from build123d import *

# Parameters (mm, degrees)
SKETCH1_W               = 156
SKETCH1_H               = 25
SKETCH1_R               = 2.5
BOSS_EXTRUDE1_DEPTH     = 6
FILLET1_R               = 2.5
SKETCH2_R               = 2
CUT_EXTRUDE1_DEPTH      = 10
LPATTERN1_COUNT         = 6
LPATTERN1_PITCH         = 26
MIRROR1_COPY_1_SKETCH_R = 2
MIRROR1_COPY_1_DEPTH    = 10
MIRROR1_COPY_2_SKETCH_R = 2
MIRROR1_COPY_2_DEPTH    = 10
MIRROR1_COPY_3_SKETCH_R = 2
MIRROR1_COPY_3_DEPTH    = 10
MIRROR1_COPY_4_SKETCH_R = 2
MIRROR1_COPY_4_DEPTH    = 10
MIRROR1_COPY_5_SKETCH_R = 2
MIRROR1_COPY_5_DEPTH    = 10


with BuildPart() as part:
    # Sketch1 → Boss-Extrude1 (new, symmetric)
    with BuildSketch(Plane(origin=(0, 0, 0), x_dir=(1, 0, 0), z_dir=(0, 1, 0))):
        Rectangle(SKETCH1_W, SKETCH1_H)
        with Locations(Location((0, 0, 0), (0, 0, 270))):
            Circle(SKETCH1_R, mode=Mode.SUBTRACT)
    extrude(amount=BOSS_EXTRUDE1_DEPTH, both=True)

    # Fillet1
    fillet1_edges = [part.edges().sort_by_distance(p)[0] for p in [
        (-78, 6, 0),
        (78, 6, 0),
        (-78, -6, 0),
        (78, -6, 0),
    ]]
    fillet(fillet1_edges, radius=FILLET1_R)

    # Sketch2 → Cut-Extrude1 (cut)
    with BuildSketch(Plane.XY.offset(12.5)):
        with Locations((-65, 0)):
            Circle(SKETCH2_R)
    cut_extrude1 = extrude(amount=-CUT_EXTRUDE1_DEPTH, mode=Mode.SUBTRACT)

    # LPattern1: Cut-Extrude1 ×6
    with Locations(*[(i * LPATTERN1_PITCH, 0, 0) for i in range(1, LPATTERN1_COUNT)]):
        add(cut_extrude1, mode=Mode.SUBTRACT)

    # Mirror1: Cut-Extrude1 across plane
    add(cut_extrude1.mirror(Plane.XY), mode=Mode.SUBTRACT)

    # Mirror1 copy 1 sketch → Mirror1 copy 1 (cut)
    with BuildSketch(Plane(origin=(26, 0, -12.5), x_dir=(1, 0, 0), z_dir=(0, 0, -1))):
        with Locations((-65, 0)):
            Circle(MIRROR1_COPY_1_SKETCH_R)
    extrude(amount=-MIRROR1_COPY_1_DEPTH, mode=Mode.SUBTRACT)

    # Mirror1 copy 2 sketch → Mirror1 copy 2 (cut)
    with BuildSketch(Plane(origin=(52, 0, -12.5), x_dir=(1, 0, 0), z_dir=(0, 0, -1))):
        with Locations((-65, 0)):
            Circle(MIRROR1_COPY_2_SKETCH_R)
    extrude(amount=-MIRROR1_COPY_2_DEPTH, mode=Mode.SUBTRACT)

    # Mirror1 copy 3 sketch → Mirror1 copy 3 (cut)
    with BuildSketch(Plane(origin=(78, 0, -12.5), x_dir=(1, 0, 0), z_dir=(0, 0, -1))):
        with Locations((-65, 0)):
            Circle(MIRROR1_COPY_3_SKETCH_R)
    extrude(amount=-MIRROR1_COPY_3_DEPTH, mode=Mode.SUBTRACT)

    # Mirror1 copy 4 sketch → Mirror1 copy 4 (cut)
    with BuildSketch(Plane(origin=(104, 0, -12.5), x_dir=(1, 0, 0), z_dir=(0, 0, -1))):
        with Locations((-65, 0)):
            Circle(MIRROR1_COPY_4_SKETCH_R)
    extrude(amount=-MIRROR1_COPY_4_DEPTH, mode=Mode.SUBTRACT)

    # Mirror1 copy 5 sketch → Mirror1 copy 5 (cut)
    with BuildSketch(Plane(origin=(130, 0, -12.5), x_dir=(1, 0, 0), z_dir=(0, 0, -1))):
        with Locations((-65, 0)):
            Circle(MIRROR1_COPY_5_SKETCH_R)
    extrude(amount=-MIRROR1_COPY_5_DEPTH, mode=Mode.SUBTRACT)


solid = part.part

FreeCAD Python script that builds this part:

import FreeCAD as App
import Part
import Sketcher

V = App.Vector


def edges_at(feature, points):
    """Names of the edges that pass closest to the given points."""
    edges = feature.Shape.Edges
    near = lambda p: min(range(len(edges)), key=lambda i: edges[i].distToShape(Part.Vertex(*p))[0])
    return sorted({f"Edge{near(p) + 1}" for p in points})

doc = App.newDocument("Part")
params = doc.addObject("Spreadsheet::Sheet", "Params")
for row, (alias, value) in enumerate([
    ("sketch1_diameter", "5 mm"),
    ("sketch1_width", "156 mm"),
    ("sketch1_height", "25 mm"),
    ("pad1_length", "12 mm"),
    ("fillet_radius", "2.5 mm"),
    ("sketch2_diameter", "4 mm"),
    ("pocket1_length", "10 mm"),
    ("linearpattern_pitch", "26 mm"),
    ("sketch3_diameter", "4 mm"),
    ("pocket2_length", "10 mm"),
    ("sketch4_diameter", "4 mm"),
    ("pocket3_length", "10 mm"),
    ("sketch5_diameter", "4 mm"),
    ("pocket4_length", "10 mm"),
    ("sketch6_diameter", "4 mm"),
    ("pocket5_length", "10 mm"),
    ("sketch7_diameter", "4 mm"),
    ("pocket6_length", "10 mm"),
], start=1):
    params.set(f"A{row}", alias)
    params.set(f"B{row}", "=" + value)
    params.setAlias(f"B{row}", alias)

body = doc.addObject("PartDesign::Body", "Body")

sketch1 = body.newObject("Sketcher::SketchObject", "Sketch")
sketch1.AttachmentSupport = (doc.getObject("XZ_Plane"), [""])
sketch1.MapMode = "FlatFace"
sketch1.addGeometry(Part.LineSegment(V(-78, -12.5, 0), V(-78, 12.5, 0)), False)
sketch1.addGeometry(Part.LineSegment(V(-78, 12.5, 0), V(78, 12.5, 0)), False)
sketch1.addGeometry(Part.LineSegment(V(78, 12.5, 0), V(78, -12.5, 0)), False)
sketch1.addGeometry(Part.LineSegment(V(78, -12.5, 0), V(-78, -12.5, 0)), False)
sketch1.addGeometry(Part.Circle(V(0, 0, 0), V(0, 0, 1), 2.5), False)
sketch1.addConstraint(Sketcher.Constraint("Coincident", 0, 2, 1, 1))
sketch1.addConstraint(Sketcher.Constraint("Coincident", 1, 2, 2, 1))
sketch1.addConstraint(Sketcher.Constraint("Coincident", 2, 2, 3, 1))
sketch1.addConstraint(Sketcher.Constraint("Coincident", 3, 2, 0, 1))
sketch1.addConstraint(Sketcher.Constraint("Vertical", 0))
sketch1.addConstraint(Sketcher.Constraint("Horizontal", 1))
sketch1.addConstraint(Sketcher.Constraint("Vertical", 2))
sketch1.addConstraint(Sketcher.Constraint("Horizontal", 3))
sketch1.addConstraint(Sketcher.Constraint("Coincident", 4, 3, -1, 1))
sketch1.addConstraint(Sketcher.Constraint("Symmetric", 0, 2, 2, 2, -1, 1))
sketch1.addConstraint(Sketcher.Constraint("Diameter", 4, 5.0))
sketch1.addConstraint(Sketcher.Constraint("DistanceX", 1, 1, 1, 2, 156.0))
sketch1.addConstraint(Sketcher.Constraint("DistanceY", 0, 1, 0, 2, 25.0))
sketch1.setExpression("Constraints[10]", "Params.sketch1_diameter")
sketch1.setExpression("Constraints[11]", "Params.sketch1_width")
sketch1.setExpression("Constraints[12]", "Params.sketch1_height")
pad1 = body.newObject("PartDesign::Pad", "Pad")
pad1.Profile = sketch1
pad1.setExpression("Length", "Params.pad1_length")
pad1.Midplane = True
doc.recompute()

fillet = body.newObject("PartDesign::Fillet", "Fillet")
fillet.Base = (pad1, edges_at(pad1, [
    (-78, 6, 0),
    (78, 6, 0),
    (-78, -6, 0),
    (78, -6, 0),
]))
fillet.setExpression("Radius", "Params.fillet_radius")

sketch2 = body.newObject("Sketcher::SketchObject", "Sketch001")
sketch2.AttachmentSupport = (doc.getObject("XY_Plane"), [""])
sketch2.MapMode = "FlatFace"
sketch2.AttachmentOffset = App.Placement(V(0, 0, 12.5), App.Rotation())
sketch2.addGeometry(Part.Circle(V(-65, 0, 0), V(0, 0, 1), 2), False)
sketch2.addConstraint(Sketcher.Constraint("PointOnObject", 0, 3, -1))
sketch2.addConstraint(Sketcher.Constraint("Diameter", 0, 4.0))
sketch2.addConstraint(Sketcher.Constraint("DistanceX", 0, 3, -1, 1, 65.0))
sketch2.setExpression("Constraints[1]", "Params.sketch2_diameter")
pocket1 = body.newObject("PartDesign::Pocket", "Pocket")
pocket1.Profile = sketch2
pocket1.setExpression("Length", "Params.pocket1_length")
doc.recompute()

linearpattern = body.newObject("PartDesign::LinearPattern", "LinearPattern")
linearpattern.Originals = [pocket1]
linearpattern.Direction = (doc.getObject("X_Axis"), [""])
linearpattern.Mode = "offset"
linearpattern.setExpression("Offset", "Params.linearpattern_pitch")
linearpattern.Occurrences = 6
body.Tip = linearpattern
doc.recompute()

mirrored = body.newObject("PartDesign::Mirrored", "Mirrored")
mirrored.Originals = [pocket1]
mirrored.MirrorPlane = (doc.getObject("XY_Plane"), [""])
body.Tip = mirrored

sketch3 = body.newObject("Sketcher::SketchObject", "Sketch002")
sketch3.AttachmentSupport = (doc.getObject("XY_Plane"), [""])
sketch3.MapMode = "FlatFace"
sketch3.AttachmentOffset = App.Placement(V(0, 0, -12.5), App.Rotation())
sketch3.addGeometry(Part.Circle(V(-39, 0, 0), V(0, 0, 1), 2), False)
sketch3.addConstraint(Sketcher.Constraint("PointOnObject", 0, 3, -1))
sketch3.addConstraint(Sketcher.Constraint("Diameter", 0, 4.0))
sketch3.addConstraint(Sketcher.Constraint("DistanceX", 0, 3, -1, 1, 39.0))
sketch3.setExpression("Constraints[1]", "Params.sketch3_diameter")
pocket2 = body.newObject("PartDesign::Pocket", "Pocket001")
pocket2.Profile = sketch3
pocket2.setExpression("Length", "Params.pocket2_length")
pocket2.Reversed = True

sketch4 = body.newObject("Sketcher::SketchObject", "Sketch003")
sketch4.AttachmentSupport = (doc.getObject("XY_Plane"), [""])
sketch4.MapMode = "FlatFace"
sketch4.AttachmentOffset = App.Placement(V(0, 0, -12.5), App.Rotation())
sketch4.addGeometry(Part.Circle(V(-13, 0, 0), V(0, 0, 1), 2), False)
sketch4.addConstraint(Sketcher.Constraint("PointOnObject", 0, 3, -1))
sketch4.addConstraint(Sketcher.Constraint("Diameter", 0, 4.0))
sketch4.addConstraint(Sketcher.Constraint("DistanceX", 0, 3, -1, 1, 13.0))
sketch4.setExpression("Constraints[1]", "Params.sketch4_diameter")
pocket3 = body.newObject("PartDesign::Pocket", "Pocket002")
pocket3.Profile = sketch4
pocket3.setExpression("Length", "Params.pocket3_length")
pocket3.Reversed = True

sketch5 = body.newObject("Sketcher::SketchObject", "Sketch004")
sketch5.AttachmentSupport = (doc.getObject("XY_Plane"), [""])
sketch5.MapMode = "FlatFace"
sketch5.AttachmentOffset = App.Placement(V(0, 0, -12.5), App.Rotation())
sketch5.addGeometry(Part.Circle(V(13, 0, 0), V(0, 0, 1), 2), False)
sketch5.addConstraint(Sketcher.Constraint("PointOnObject", 0, 3, -1))
sketch5.addConstraint(Sketcher.Constraint("Diameter", 0, 4.0))
sketch5.addConstraint(Sketcher.Constraint("DistanceX", -1, 1, 0, 3, 13.0))
sketch5.setExpression("Constraints[1]", "Params.sketch5_diameter")
pocket4 = body.newObject("PartDesign::Pocket", "Pocket003")
pocket4.Profile = sketch5
pocket4.setExpression("Length", "Params.pocket4_length")
pocket4.Reversed = True

sketch6 = body.newObject("Sketcher::SketchObject", "Sketch005")
sketch6.AttachmentSupport = (doc.getObject("XY_Plane"), [""])
sketch6.MapMode = "FlatFace"
sketch6.AttachmentOffset = App.Placement(V(0, 0, -12.5), App.Rotation())
sketch6.addGeometry(Part.Circle(V(39, 0, 0), V(0, 0, 1), 2), False)
sketch6.addConstraint(Sketcher.Constraint("PointOnObject", 0, 3, -1))
sketch6.addConstraint(Sketcher.Constraint("Diameter", 0, 4.0))
sketch6.addConstraint(Sketcher.Constraint("DistanceX", -1, 1, 0, 3, 39.0))
sketch6.setExpression("Constraints[1]", "Params.sketch6_diameter")
pocket5 = body.newObject("PartDesign::Pocket", "Pocket004")
pocket5.Profile = sketch6
pocket5.setExpression("Length", "Params.pocket5_length")
pocket5.Reversed = True

sketch7 = body.newObject("Sketcher::SketchObject", "Sketch006")
sketch7.AttachmentSupport = (doc.getObject("XY_Plane"), [""])
sketch7.MapMode = "FlatFace"
sketch7.AttachmentOffset = App.Placement(V(0, 0, -12.5), App.Rotation())
sketch7.addGeometry(Part.Circle(V(65, 0, 0), V(0, 0, 1), 2), False)
sketch7.addConstraint(Sketcher.Constraint("PointOnObject", 0, 3, -1))
sketch7.addConstraint(Sketcher.Constraint("Diameter", 0, 4.0))
sketch7.addConstraint(Sketcher.Constraint("DistanceX", -1, 1, 0, 3, 65.0))
sketch7.setExpression("Constraints[1]", "Params.sketch7_diameter")
pocket6 = body.newObject("PartDesign::Pocket", "Pocket005")
pocket6.Profile = sketch7
pocket6.setExpression("Length", "Params.pocket6_length")
pocket6.Reversed = True

doc.recompute()
